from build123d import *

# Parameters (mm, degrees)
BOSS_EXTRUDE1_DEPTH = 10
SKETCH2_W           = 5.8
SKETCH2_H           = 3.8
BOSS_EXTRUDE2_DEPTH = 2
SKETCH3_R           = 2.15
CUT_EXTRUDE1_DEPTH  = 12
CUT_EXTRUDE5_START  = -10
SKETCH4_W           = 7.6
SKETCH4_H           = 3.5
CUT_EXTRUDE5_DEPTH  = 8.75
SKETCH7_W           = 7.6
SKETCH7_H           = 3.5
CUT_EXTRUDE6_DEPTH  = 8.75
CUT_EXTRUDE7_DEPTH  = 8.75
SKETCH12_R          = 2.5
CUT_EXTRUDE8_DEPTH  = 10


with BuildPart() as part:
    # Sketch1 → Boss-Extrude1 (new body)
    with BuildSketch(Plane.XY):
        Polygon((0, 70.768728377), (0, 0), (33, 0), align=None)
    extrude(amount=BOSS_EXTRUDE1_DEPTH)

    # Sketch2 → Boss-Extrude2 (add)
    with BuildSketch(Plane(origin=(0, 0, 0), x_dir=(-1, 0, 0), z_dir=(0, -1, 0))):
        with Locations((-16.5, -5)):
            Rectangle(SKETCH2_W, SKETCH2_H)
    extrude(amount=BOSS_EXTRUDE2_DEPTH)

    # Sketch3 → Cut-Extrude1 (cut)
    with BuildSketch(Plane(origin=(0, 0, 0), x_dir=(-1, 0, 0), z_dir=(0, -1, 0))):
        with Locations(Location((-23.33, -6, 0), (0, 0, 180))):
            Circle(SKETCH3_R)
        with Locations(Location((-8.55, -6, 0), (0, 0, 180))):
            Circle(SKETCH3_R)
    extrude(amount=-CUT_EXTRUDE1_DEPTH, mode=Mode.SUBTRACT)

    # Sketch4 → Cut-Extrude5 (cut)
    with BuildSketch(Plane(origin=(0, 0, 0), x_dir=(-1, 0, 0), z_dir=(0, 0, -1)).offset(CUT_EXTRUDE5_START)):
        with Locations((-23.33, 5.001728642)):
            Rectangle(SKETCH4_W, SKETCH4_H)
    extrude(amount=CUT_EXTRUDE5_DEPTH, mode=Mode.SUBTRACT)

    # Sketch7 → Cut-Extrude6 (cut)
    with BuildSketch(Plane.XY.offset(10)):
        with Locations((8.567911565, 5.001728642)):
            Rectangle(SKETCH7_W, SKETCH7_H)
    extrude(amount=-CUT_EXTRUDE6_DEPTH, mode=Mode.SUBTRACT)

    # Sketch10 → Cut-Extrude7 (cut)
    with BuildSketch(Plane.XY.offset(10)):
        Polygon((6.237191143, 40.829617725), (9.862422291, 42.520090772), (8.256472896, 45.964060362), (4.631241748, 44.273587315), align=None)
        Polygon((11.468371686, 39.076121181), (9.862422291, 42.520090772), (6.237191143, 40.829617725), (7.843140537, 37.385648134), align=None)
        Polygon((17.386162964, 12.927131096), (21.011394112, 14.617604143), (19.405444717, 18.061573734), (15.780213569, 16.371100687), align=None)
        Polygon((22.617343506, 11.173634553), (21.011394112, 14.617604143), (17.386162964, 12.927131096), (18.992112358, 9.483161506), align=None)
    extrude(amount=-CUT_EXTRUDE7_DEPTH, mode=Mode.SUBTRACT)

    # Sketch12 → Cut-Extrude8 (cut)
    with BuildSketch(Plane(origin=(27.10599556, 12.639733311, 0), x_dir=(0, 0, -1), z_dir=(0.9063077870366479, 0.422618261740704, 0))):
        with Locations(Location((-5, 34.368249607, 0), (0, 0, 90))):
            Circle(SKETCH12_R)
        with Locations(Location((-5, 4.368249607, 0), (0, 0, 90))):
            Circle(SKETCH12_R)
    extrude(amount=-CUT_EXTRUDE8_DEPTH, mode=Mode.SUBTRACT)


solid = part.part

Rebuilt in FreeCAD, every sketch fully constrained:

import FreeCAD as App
import Part
import Sketcher
from FreeCAD import Vector
Q = App.Units.Quantity

doc = App.newDocument("Part")
body = doc.addObject("PartDesign::Body", "Body")

# Sketch on XY plane
sketch1 = body.newObject("Sketcher::SketchObject", "Sketch")
sketch1.AttachmentSupport = (doc.getObject("XY_Plane"), [""])
sketch1.MapMode = "FlatFace"
sketch1.addGeometry([
    Part.LineSegment(Vector(0, 70.768728, 0), Vector(0, 0, 0)),
    Part.LineSegment(Vector(0, 0, 0), Vector(33, 0, 0)),
    Part.LineSegment(Vector(33, 0, 0), Vector(0, 70.768728, 0)),
], False)
sketch1.addConstraint([
    Sketcher.Constraint("Coincident", 0, 2, 1, 1),
    Sketcher.Constraint("Coincident", 1, 2, 2, 1),
    Sketcher.Constraint("Coincident", 2, 2, 0, 1),
    Sketcher.Constraint("Vertical", 0),
    Sketcher.Constraint("Horizontal", 1),
    Sketcher.Constraint("Coincident", 0, 2, -1, 1),
    Sketcher.Constraint("DistanceX", 1, 1, 1, 2, Q("33 mm")),
    Sketcher.Constraint("Angle", 2, Q("115 deg")),
])
pad1 = body.newObject("PartDesign::Pad", "Pad")
pad1.Profile = sketch1
pad1.Length = 10

# Sketch on XZ plane
sketch2 = body.newObject("Sketcher::SketchObject", "Sketch001")
sketch2.AttachmentSupport = (doc.getObject("XZ_Plane"), [""])
sketch2.MapMode = "FlatFace"
sketch2.addGeometry([
    Part.LineSegment(Vector(19.4, 3.1, 0), Vector(19.4, 6.9, 0)),
    Part.LineSegment(Vector(19.4, 6.9, 0), Vector(13.6, 6.9, 0)),
    Part.LineSegment(Vector(13.6, 6.9, 0), Vector(13.6, 3.1, 0)),
    Part.LineSegment(Vector(13.6, 3.1, 0), Vector(19.4, 3.1, 0)),
], False)
sketch2.addConstraint([
    Sketcher.Constraint("Coincident", 0, 2, 1, 1),
    Sketcher.Constraint("Coincident", 1, 2, 2, 1),
    Sketcher.Constraint("Coincident", 2, 2, 3, 1),
    Sketcher.Constraint("Coincident", 3, 2, 0, 1),
    Sketcher.Constraint("Vertical", 0),
    Sketcher.Constraint("Horizontal", 1),
    Sketcher.Constraint("Vertical", 2),
    Sketcher.Constraint("Horizontal", 3),
    Sketcher.Constraint("DistanceX", 1, 2, 1, 1, Q("5.8 mm")),
    Sketcher.Constraint("DistanceY", 0, 1, 0, 2, Q("3.8 mm")),
    Sketcher.Constraint("DistanceX", -1, 1, 0, 2, Q("19.4 mm")),
    Sketcher.Constraint("DistanceY", -1, 1, 0, 2, Q("6.9 mm")),
])
pad2 = body.newObject("PartDesign::Pad", "Pad001")
pad2.Profile = sketch2
pad2.Length = 2

# Sketch on XZ plane
sketch3 = body.newObject("Sketcher::SketchObject", "Sketch002")
sketch3.AttachmentSupport = (doc.getObject("XZ_Plane"), [""])
sketch3.MapMode = "FlatFace"
sketch3.addGeometry([
    Part.Circle(Vector(23.33, 6, 0), Vector(0, 0, 1), 2.15),
    Part.Circle(Vector(8.55, 6, 0), Vector(0, 0, 1), 2.15),
], False)
sketch3.addConstraint([
    Sketcher.Constraint("Equal", 0, 1),
    Sketcher.Constraint("Horizontal", 0, 3, 1, 3),
    Sketcher.Constraint("Diameter", 0, Q("4.3 mm")),
    Sketcher.Constraint("DistanceY", -1, 1, 0, 3, Q("6 mm")),
    Sketcher.Constraint("DistanceX", -1, 1, 0, 3, Q("23.33 mm")),
    Sketcher.Constraint("DistanceX", -1, 1, 1, 3, Q("8.55 mm")),
])
pocket1 = body.newObject("PartDesign::Pocket", "Pocket")
pocket1.Profile = sketch3
pocket1.Length = 12

# Sketch on XY plane
sketch4 = body.newObject("Sketcher::SketchObject", "Sketch003")
sketch4.AttachmentSupport = (doc.getObject("XY_Plane"), [""])
sketch4.MapMode = "FlatFace"
sketch4.AttachmentOffset = App.Placement(Vector(0, 0, 10), App.Rotation())
sketch4.addGeometry([
    Part.LineSegment(Vector(27.13, 6.751729, 0), Vector(27.13, 3.251729, 0)),
    Part.LineSegment(Vector(27.13, 3.251729, 0), Vector(19.53, 3.251729, 0)),
    Part.LineSegment(Vector(19.53, 3.251729, 0), Vector(19.53, 6.751729, 0)),
    Part.LineSegment(Vector(19.53, 6.751729, 0), Vector(27.13, 6.751729, 0)),
], False)
sketch4.addConstraint([
    Sketcher.Constraint("Coincident", 0, 2, 1, 1),
    Sketcher.Constraint("Coincident", 1, 2, 2, 1),
    Sketcher.Constraint("Coincident", 2, 2, 3, 1),
    Sketcher.Constraint("Coincident", 3, 2, 0, 1),
    Sketcher.Constraint("Vertical", 0),
    Sketcher.Constraint("Horizontal", 1),
    Sketcher.Constraint("Vertical", 2),
    Sketcher.Constraint("Horizontal", 3),
    Sketcher.Constraint("DistanceX", 1, 2, 1, 1, Q("7.6 mm")),
    Sketcher.Constraint("DistanceY", 0, 2, 0, 1, Q("3.5 mm")),
    Sketcher.Constraint("DistanceX", -1, 1, 0, 2, Q("27.13 mm")),
    Sketcher.Constraint("DistanceY", -1, 1, 0, 2, Q("3.251729 mm")),
])
pocket2 = body.newObject("PartDesign::Pocket", "Pocket001")
pocket2.Profile = sketch4
pocket2.Length = 8.75

# Sketch on XY plane
sketch5 = body.newObject("Sketcher::SketchObject", "Sketch004")
sketch5.AttachmentSupport = (doc.getObject("XY_Plane"), [""])
sketch5.MapMode = "FlatFace"
sketch5.AttachmentOffset = App.Placement(Vector(0, 0, 10), App.Rotation())
sketch5.addGeometry([
    Part.LineSegment(Vector(4.767912, 6.751729, 0), Vector(4.767912, 3.251729, 0)),
    Part.LineSegment(Vector(4.767912, 3.251729, 0), Vector(12.367912, 3.251729, 0)),
    Part.LineSegment(Vector(12.367912, 3.251729, 0), Vector(12.367912, 6.751729, 0)),
    Part.LineSegment(Vector(12.367912, 6.751729, 0), Vector(4.767912, 6.751729, 0)),
], False)
sketch5.addConstraint([
    Sketcher.Constraint("Coincident", 0, 2, 1, 1),
    Sketcher.Constraint("Coincident", 1, 2, 2, 1),
    Sketcher.Constraint("Coincident", 2, 2, 3, 1),
    Sketcher.Constraint("Coincident", 3, 2, 0, 1),
    Sketcher.Constraint("Vertical", 0),
    Sketcher.Constraint("Horizontal", 1),
    Sketcher.Constraint("Vertical", 2),
    Sketcher.Constraint("Horizontal", 3),
    Sketcher.Constraint("DistanceX", 1, 1, 1, 2, Q("7.6 mm")),
    Sketcher.Constraint("DistanceY", 0, 2, 0, 1, Q("3.5 mm")),
    Sketcher.Constraint("DistanceX", -1, 1, 0, 2, Q("4.767912 mm")),
    Sketcher.Constraint("DistanceY", -1, 1, 0, 2, Q("3.251729 mm")),
])
pocket3 = body.newObject("PartDesign::Pocket", "Pocket002")
pocket3.Profile = sketch5
pocket3.Length = 8.75

# Sketch on XY plane
sketch6 = body.newObject("Sketcher::SketchObject", "Sketch005")
sketch6.AttachmentSupport = (doc.getObject("XY_Plane"), [""])
sketch6.MapMode = "FlatFace"
sketch6.AttachmentOffset = App.Placement(Vector(0, 0, 10), App.Rotation())
sketch6.addGeometry([
    Part.LineSegment(Vector(9.862422, 42.520091, 0), Vector(8.256473, 45.96406, 0)),  # 0
    Part.LineSegment(Vector(8.256473, 45.96406, 0), Vector(4.631242, 44.273587, 0)),  # 1
    Part.LineSegment(Vector(4.631242, 44.273587, 0), Vector(6.237191, 40.829618, 0)),  # 2
    Part.LineSegment(Vector(6.237191, 40.829618, 0), Vector(7.843141, 37.385648, 0)),  # 3
    Part.LineSegment(Vector(7.843141, 37.385648, 0), Vector(11.468372, 39.076121, 0)),  # 4
    Part.LineSegment(Vector(11.468372, 39.076121, 0), Vector(9.862422, 42.520091, 0)),  # 5
    Part.LineSegment(Vector(21.011394, 14.617604, 0), Vector(19.405445, 18.061574, 0)),  # 6
    Part.LineSegment(Vector(19.405445, 18.061574, 0), Vector(15.780214, 16.371101, 0)),  # 7
    Part.LineSegment(Vector(15.780214, 16.371101, 0), Vector(17.386163, 12.927131, 0)),  # 8
    Part.LineSegment(Vector(17.386163, 12.927131, 0), Vector(18.992112, 9.483162, 0)),  # 9
    Part.LineSegment(Vector(18.992112, 9.483162, 0), Vector(22.617344, 11.173635, 0)),  # 10
    Part.LineSegment(Vector(22.617344, 11.173635, 0), Vector(21.011394, 14.617604, 0)),  # 11
], False)
sketch6.addConstraint([
    Sketcher.Constraint("Coincident", 0, 2, 1, 1),
    Sketcher.Constraint("Coincident", 1, 2, 2, 1),
    Sketcher.Constraint("Coincident", 2, 2, 3, 1),
    Sketcher.Constraint("Coincident", 3, 2, 4, 1),
    Sketcher.Constraint("Coincident", 4, 2, 5, 1),
    Sketcher.Constraint("Coincident", 5, 2, 0, 1),
    Sketcher.Constraint("Coincident", 6, 2, 7, 1),
    Sketcher.Constraint("Coincident", 7, 2, 8, 1),
    Sketcher.Constraint("Coincident", 8, 2, 9, 1),
    Sketcher.Constraint("Coincident", 9, 2, 10, 1),
    Sketcher.Constraint("Coincident", 10, 2, 11, 1),
    Sketcher.Constraint("Coincident", 11, 2, 6, 1),
    Sketcher.Constraint("Perpendicular", 0, 1),
    Sketcher.Constraint("Perpendicular", 1, 2),
    Sketcher.Constraint("Parallel", 2, 3),
    Sketcher.Constraint("Perpendicular", 3, 4),
    Sketcher.Constraint("Perpendicular", 4, 5),
    Sketcher.Constraint("Parallel", 5, 6),
    Sketcher.Constraint("Perpendicular", 6, 7),
    Sketcher.Constraint("Perpendicular", 7, 8),
    Sketcher.Constraint("Parallel", 8, 9),
    Sketcher.Constraint("Perpendicular", 9, 10),
    Sketcher.Constraint("Perpendicular", 10, 11),
    Sketcher.Constraint("Equal", 0, 2),
    Sketcher.Constraint("Equal", 2, 3),
    Sketcher.Constraint("Equal", 5, 6),
    Sketcher.Constraint("Equal", 4, 7),
    Sketcher.Constraint("Equal", 6, 8),
    Sketcher.Constraint("Equal", 8, 9),
    Sketcher.Constraint("Angle", 0, Q("115 deg")),
    Sketcher.Constraint("Distance", 1, Q("4 mm")),
    Sketcher.Constraint("Distance", 0, Q("3.8 mm")),
    Sketcher.Constraint("DistanceY", -1, 1, 7, 2, Q("16.371101 mm")),
    Sketcher.Constraint("DistanceY", -1, 1, 0, 2, Q("45.96406 mm")),
    Sketcher.Constraint("DistanceX", -1, 1, 1, 2, Q("4.631242 mm")),
    Sketcher.Constraint("DistanceX", 0, 2, 6, 2, Q("11.148972 mm")),
])
pocket4 = body.newObject("PartDesign::Pocket", "Pocket003")
pocket4.Profile = sketch6
pocket4.Length = 8.75

# Sketch on an angled plane
sketch7 = body.newObject("Sketcher::SketchObject", "Sketch006")
sketch7.Placement = App.Placement(Vector(27.105996, 12.639733, 0), App.Rotation(Vector(0, 0, -1), Vector(-0.422618262, 0.906307787, 0), Vector(0.906307787, 0.422618262, 0), "ZXY"))
sketch7.addGeometry([
    Part.Circle(Vector(-5, 34.36825, 0), Vector(0, 0, 1), 2.5),
    Part.Circle(Vector(-5, 4.36825, 0), Vector(0, 0, 1), 2.5),
], False)
sketch7.addConstraint([
    Sketcher.Constraint("Equal", 0, 1),
    Sketcher.Constraint("Vertical", 0, 3, 1, 3),
    Sketcher.Constraint("Diameter", 0, Q("5 mm")),
    Sketcher.Constraint("DistanceX", 0, 3, -1, 1, Q("5 mm")),
    Sketcher.Constraint("DistanceY", 1, 3, 0, 3, Q("30 mm")),
    Sketcher.Constraint("DistanceY", -1, 1, 0, 3, Q("34.36825 mm")),
])
pocket5 = body.newObject("PartDesign::Pocket", "Pocket004")
pocket5.Profile = sketch7
pocket5.Length = 10

doc.recompute()
